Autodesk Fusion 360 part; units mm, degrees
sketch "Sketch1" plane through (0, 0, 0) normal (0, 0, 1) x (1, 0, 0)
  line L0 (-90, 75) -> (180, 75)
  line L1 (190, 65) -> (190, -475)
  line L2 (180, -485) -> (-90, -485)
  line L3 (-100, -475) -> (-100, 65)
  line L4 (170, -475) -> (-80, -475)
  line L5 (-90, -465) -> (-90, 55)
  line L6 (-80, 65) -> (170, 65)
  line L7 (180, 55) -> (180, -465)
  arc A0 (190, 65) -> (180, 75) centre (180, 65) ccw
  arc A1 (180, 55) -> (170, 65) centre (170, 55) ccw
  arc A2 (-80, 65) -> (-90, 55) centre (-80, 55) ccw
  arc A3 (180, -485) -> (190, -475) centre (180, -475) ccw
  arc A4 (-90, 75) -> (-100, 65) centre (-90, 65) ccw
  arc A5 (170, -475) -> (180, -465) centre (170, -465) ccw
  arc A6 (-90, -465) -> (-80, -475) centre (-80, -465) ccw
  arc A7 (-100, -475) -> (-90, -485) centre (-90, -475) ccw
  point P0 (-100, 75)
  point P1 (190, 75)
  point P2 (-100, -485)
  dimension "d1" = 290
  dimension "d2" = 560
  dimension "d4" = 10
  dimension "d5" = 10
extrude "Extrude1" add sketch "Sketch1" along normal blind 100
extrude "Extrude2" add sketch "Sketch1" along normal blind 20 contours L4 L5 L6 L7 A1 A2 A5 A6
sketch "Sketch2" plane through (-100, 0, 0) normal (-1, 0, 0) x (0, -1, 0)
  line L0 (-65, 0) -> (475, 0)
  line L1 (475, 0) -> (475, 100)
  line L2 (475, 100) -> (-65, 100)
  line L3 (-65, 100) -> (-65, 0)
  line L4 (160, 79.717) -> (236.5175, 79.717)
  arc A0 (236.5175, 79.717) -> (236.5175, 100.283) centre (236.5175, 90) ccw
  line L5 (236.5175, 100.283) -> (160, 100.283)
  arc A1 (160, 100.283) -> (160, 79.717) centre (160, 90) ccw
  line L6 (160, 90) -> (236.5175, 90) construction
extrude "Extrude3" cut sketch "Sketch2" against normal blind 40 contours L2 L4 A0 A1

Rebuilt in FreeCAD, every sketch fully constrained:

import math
import FreeCAD as App
import Part
import Sketcher
from FreeCAD import Vector

doc = App.newDocument("Part")
params = doc.addObject("Spreadsheet::Sheet", "Params")
for row, (alias, value) in enumerate([
    ("sketch1_radius", "10 mm"),
    ("sketch1_width", "270 mm"),
    ("sketch1_height", "540 mm"),
    ("pad1_length", "100 mm"),
    ("sketch2_radius", "10 mm"),
    ("sketch2_width", "250 mm"),
    ("sketch2_height", "520 mm"),
    ("pad2_length", "20 mm"),
    ("pocket1_length", "40 mm"),
], start=1):
    params.set(f"A{row}", alias)
    params.set(f"B{row}", "=" + value)
    params.setAlias(f"B{row}", alias)

body = doc.addObject("PartDesign::Body", "Body")

# Sketch on XY plane
sketch1 = body.newObject("Sketcher::SketchObject", "Sketch")
sketch1.AttachmentSupport = (doc.getObject("XY_Plane"), [""])
sketch1.MapMode = "FlatFace"
sketch1.addGeometry(Part.LineSegment(Vector(180, 75, 0), Vector(-90, 75, 0)), False)
sketch1.addGeometry(Part.ArcOfCircle(Part.Circle(Vector(-90, 65, 0), Vector(0, 0, 1), 10), math.radians(90), math.radians(180)), False)
sketch1.addGeometry(Part.LineSegment(Vector(-100, 65, 0), Vector(-100, -475, 0)), False)
sketch1.addGeometry(Part.ArcOfCircle(Part.Circle(Vector(-90, -475, 0), Vector(0, 0, 1), 10), math.radians(180), math.radians(270)), False)
sketch1.addGeometry(Part.LineSegment(Vector(-90, -485, 0), Vector(180, -485, 0)), False)
sketch1.addGeometry(Part.ArcOfCircle(Part.Circle(Vector(180, -475, 0), Vector(0, 0, 1), 10), math.radians(-90), math.radians(0)), False)
sketch1.addGeometry(Part.LineSegment(Vector(190, -475, 0), Vector(190, 65, 0)), False)
sketch1.addGeometry(Part.ArcOfCircle(Part.Circle(Vector(180, 65, 0), Vector(0, 0, 1), 10), math.radians(0), math.radians(90)), False)
sketch1.addGeometry(Part.ArcOfCircle(Part.Circle(Vector(170, -465, 0), Vector(0, 0, 1), 10), math.radians(-90), math.radians(0)), False)
sketch1.addGeometry(Part.LineSegment(Vector(170, -475, 0), Vector(-80, -475, 0)), False)
sketch1.addGeometry(Part.ArcOfCircle(Part.Circle(Vector(-80, -465, 0), Vector(0, 0, 1), 10), math.radians(180), math.radians(270)), False)
sketch1.addGeometry(Part.LineSegment(Vector(-90, -465, 0), Vector(-90, 55, 0)), False)
sketch1.addGeometry(Part.ArcOfCircle(Part.Circle(Vector(-80, 55, 0), Vector(0, 0, 1), 10), math.radians(90), math.radians(180)), False)
sketch1.addGeometry(Part.LineSegment(Vector(-80, 65, 0), Vector(170, 65, 0)), False)
sketch1.addGeometry(Part.ArcOfCircle(Part.Circle(Vector(170, 55, 0), Vector(0, 0, 1), 10), math.radians(0), math.radians(90)), False)
sketch1.addGeometry(Part.LineSegment(Vector(180, 55, 0), Vector(180, -465, 0)), False)
sketch1.addConstraint(Sketcher.Constraint("Tangent", 0, 2, 1, 1))
sketch1.addConstraint(Sketcher.Constraint("Tangent", 1, 2, 2, 1))
sketch1.addConstraint(Sketcher.Constraint("Tangent", 2, 2, 3, 1))
sketch1.addConstraint(Sketcher.Constraint("Tangent", 3, 2, 4, 1))
sketch1.addConstraint(Sketcher.Constraint("Tangent", 4, 2, 5, 1))
sketch1.addConstraint(Sketcher.Constraint("Tangent", 5, 2, 6, 1))
sketch1.addConstraint(Sketcher.Constraint("Tangent", 6, 2, 7, 1))
sketch1.addConstraint(Sketcher.Constraint("Tangent", 7, 2, 0, 1))
sketch1.addConstraint(Sketcher.Constraint("Tangent", 8, 1, 9, 1))
sketch1.addConstraint(Sketcher.Constraint("Tangent", 9, 2, 10, 2))
sketch1.addConstraint(Sketcher.Constraint("Tangent", 10, 1, 11, 1))
sketch1.addConstraint(Sketcher.Constraint("Tangent", 11, 2, 12, 2))
sketch1.addConstraint(Sketcher.Constraint("Tangent", 12, 1, 13, 1))
sketch1.addConstraint(Sketcher.Constraint("Tangent", 13, 2, 14, 2))
sketch1.addConstraint(Sketcher.Constraint("Tangent", 14, 1, 15, 1))
sketch1.addConstraint(Sketcher.Constraint("Tangent", 15, 2, 8, 2))
sketch1.addConstraint(Sketcher.Constraint("Horizontal", 0))
sketch1.addConstraint(Sketcher.Constraint("Vertical", 2))
sketch1.addConstraint(Sketcher.Constraint("Horizontal", 4))
sketch1.addConstraint(Sketcher.Constraint("Vertical", 6))
sketch1.addConstraint(Sketcher.Constraint("Horizontal", 9))
sketch1.addConstraint(Sketcher.Constraint("Vertical", 11))
sketch1.addConstraint(Sketcher.Constraint("Horizontal", 13))
sketch1.addConstraint(Sketcher.Constraint("Vertical", 15))
sketch1.addConstraint(Sketcher.Constraint("Equal", 1, 3))
sketch1.addConstraint(Sketcher.Constraint("Equal", 3, 5))
sketch1.addConstraint(Sketcher.Constraint("Equal", 5, 7))
sketch1.addConstraint(Sketcher.Constraint("Equal", 7, 8))
sketch1.addConstraint(Sketcher.Constraint("Equal", 8, 10))
sketch1.addConstraint(Sketcher.Constraint("Equal", 10, 12))
sketch1.addConstraint(Sketcher.Constraint("Equal", 12, 14))
sketch1.addConstraint(Sketcher.Constraint("Horizontal", 5, 2, 8, 1))
sketch1.addConstraint(Sketcher.Constraint("Horizontal", 6, 2, 12, 1))
sketch1.addConstraint(Sketcher.Constraint("Vertical", 3, 2, 10, 1))
sketch1.addConstraint(Sketcher.Constraint("Vertical", 7, 2, 14, 1))
sketch1.addConstraint(Sketcher.Constraint("Radius", 1, 10.0))
sketch1.addConstraint(Sketcher.Constraint("DistanceX", 0, 2, 0, 1, 270.0))
sketch1.addConstraint(Sketcher.Constraint("DistanceY", 2, 2, 2, 1, 540.0))
sketch1.addConstraint(Sketcher.Constraint("DistanceX", 1, 3, -1, 1, 90.0))
sketch1.addConstraint(Sketcher.Constraint("DistanceY", -1, 1, 1, 3, 65.0))
sketch1.setExpression("Constraints[35]", "Params.sketch1_radius")
sketch1.setExpression("Constraints[36]", "Params.sketch1_width")
sketch1.setExpression("Constraints[37]", "Params.sketch1_height")
pad1 = body.newObject("PartDesign::Pad", "Pad")
pad1.Profile = sketch1
pad1.setExpression("Length", "Params.pad1_length")

# Sketch on XY plane
sketch2 = body.newObject("Sketcher::SketchObject", "Sketch001")
sketch2.AttachmentSupport = (doc.getObject("XY_Plane"), [""])
sketch2.MapMode = "FlatFace"
sketch2.addGeometry(Part.LineSegment(Vector(-80, -475, 0), Vector(170, -475, 0)), False)
sketch2.addGeometry(Part.ArcOfCircle(Part.Circle(Vector(170, -465, 0), Vector(0, 0, 1), 10), math.radians(-90), math.radians(0)), False)
sketch2.addGeometry(Part.LineSegment(Vector(180, -465, 0), Vector(180, 55, 0)), False)
sketch2.addGeometry(Part.ArcOfCircle(Part.Circle(Vector(170, 55, 0), Vector(0, 0, 1), 10), math.radians(0), math.radians(90)), False)
sketch2.addGeometry(Part.LineSegment(Vector(170, 65, 0), Vector(-80, 65, 0)), False)
sketch2.addGeometry(Part.ArcOfCircle(Part.Circle(Vector(-80, 55, 0), Vector(0, 0, 1), 10), math.radians(90), math.radians(180)), False)
sketch2.addGeometry(Part.LineSegment(Vector(-90, 55, 0), Vector(-90, -465, 0)), False)
sketch2.addGeometry(Part.ArcOfCircle(Part.Circle(Vector(-80, -465, 0), Vector(0, 0, 1), 10), math.radians(180), math.radians(270)), False)
sketch2.addConstraint(Sketcher.Constraint("Tangent", 0, 2, 1, 1))
sketch2.addConstraint(Sketcher.Constraint("Tangent", 1, 2, 2, 1))
sketch2.addConstraint(Sketcher.Constraint("Tangent", 2, 2, 3, 1))
sketch2.addConstraint(Sketcher.Constraint("Tangent", 3, 2, 4, 1))
sketch2.addConstraint(Sketcher.Constraint("Tangent", 4, 2, 5, 1))
sketch2.addConstraint(Sketcher.Constraint("Tangent", 5, 2, 6, 1))
sketch2.addConstraint(Sketcher.Constraint("Tangent", 6, 2, 7, 1))
sketch2.addConstraint(Sketcher.Constraint("Tangent", 7, 2, 0, 1))
sketch2.addConstraint(Sketcher.Constraint("Horizontal", 0))
sketch2.addConstraint(Sketcher.Constraint("Vertical", 2))
sketch2.addConstraint(Sketcher.Constraint("Horizontal", 4))
sketch2.addConstraint(Sketcher.Constraint("Vertical", 6))
sketch2.addConstraint(Sketcher.Constraint("Equal", 1, 3))
sketch2.addConstraint(Sketcher.Constraint("Equal", 3, 5))
sketch2.addConstraint(Sketcher.Constraint("Equal", 5, 7))
sketch2.addConstraint(Sketcher.Constraint("Radius", 1, 10.0))
sketch2.addConstraint(Sketcher.Constraint("DistanceX", 0, 1, 0, 2, 250.0))
sketch2.addConstraint(Sketcher.Constraint("DistanceY", 2, 1, 2, 2, 520.0))
sketch2.addConstraint(Sketcher.Constraint("DistanceX", -1, 1, 1, 3, 170.0))
sketch2.addConstraint(Sketcher.Constraint("DistanceY", 1, 3, -1, 1, 465.0))
sketch2.setExpression("Constraints[15]", "Params.sketch2_radius")
sketch2.setExpression("Constraints[16]", "Params.sketch2_width")
sketch2.setExpression("Constraints[17]", "Params.sketch2_height")
pad2 = body.newObject("PartDesign::Pad", "Pad001")
pad2.Profile = sketch2
pad2.setExpression("Length", "Params.pad2_length")

# Sketch on YZ plane
sketch3 = body.newObject("Sketcher::SketchObject", "Sketch002")
sketch3.AttachmentSupport = (doc.getObject("YZ_Plane"), [""])
sketch3.MapMode = "FlatFace"
sketch3.AttachmentOffset = App.Placement(Vector(0, 0, -100), App.Rotation())
sketch3.addGeometry(Part.LineSegment(Vector(-239, 100, 0), Vector(-158, 100, 0)), False)
sketch3.addGeometry(Part.ArcOfCircle(Part.Circle(Vector(-160, 90, 0), Vector(0, 0, 1), 10), math.radians(-90), math.radians(77)), False)
sketch3.addGeometry(Part.LineSegment(Vector(-160, 80, 0), Vector(-237, 80, 0)), False)
sketch3.addGeometry(Part.ArcOfCircle(Part.Circle(Vector(-237, 90, 0), Vector(0, 0, 1), 10), math.radians(103), math.radians(270)), False)
sketch3.addConstraint(Sketcher.Constraint("Coincident", 0, 2, 1, 2))
sketch3.addConstraint(Sketcher.Constraint("Tangent", 1, 1, 2, 1))
sketch3.addConstraint(Sketcher.Constraint("Tangent", 2, 2, 3, 2))
sketch3.addConstraint(Sketcher.Constraint("Coincident", 3, 1, 0, 1))
sketch3.addConstraint(Sketcher.Constraint("Horizontal", 0))
sketch3.addConstraint(Sketcher.Constraint("Horizontal", 2))
sketch3.addConstraint(Sketcher.Constraint("Equal", 1, 3))
sketch3.addConstraint(Sketcher.Constraint("DistanceX", 1, 3, -1, 1, 160.0))
sketch3.addConstraint(Sketcher.Constraint("DistanceY", -1, 1, 1, 3, 90.0))
sketch3.addConstraint(Sketcher.Constraint("DistanceY", -1, 1, 0, 2, 100.0))
sketch3.addConstraint(Sketcher.Constraint("Radius", 1, 10.283))
sketch3.addConstraint(Sketcher.Constraint("DistanceX", 0, 1, 0, 2, 81.3092))
pocket1 = body.newObject("PartDesign::Pocket", "Pocket")
pocket1.Profile = sketch3
pocket1.setExpression("Length", "Params.pocket1_length")
pocket1.Reversed = True

doc.recompute()
